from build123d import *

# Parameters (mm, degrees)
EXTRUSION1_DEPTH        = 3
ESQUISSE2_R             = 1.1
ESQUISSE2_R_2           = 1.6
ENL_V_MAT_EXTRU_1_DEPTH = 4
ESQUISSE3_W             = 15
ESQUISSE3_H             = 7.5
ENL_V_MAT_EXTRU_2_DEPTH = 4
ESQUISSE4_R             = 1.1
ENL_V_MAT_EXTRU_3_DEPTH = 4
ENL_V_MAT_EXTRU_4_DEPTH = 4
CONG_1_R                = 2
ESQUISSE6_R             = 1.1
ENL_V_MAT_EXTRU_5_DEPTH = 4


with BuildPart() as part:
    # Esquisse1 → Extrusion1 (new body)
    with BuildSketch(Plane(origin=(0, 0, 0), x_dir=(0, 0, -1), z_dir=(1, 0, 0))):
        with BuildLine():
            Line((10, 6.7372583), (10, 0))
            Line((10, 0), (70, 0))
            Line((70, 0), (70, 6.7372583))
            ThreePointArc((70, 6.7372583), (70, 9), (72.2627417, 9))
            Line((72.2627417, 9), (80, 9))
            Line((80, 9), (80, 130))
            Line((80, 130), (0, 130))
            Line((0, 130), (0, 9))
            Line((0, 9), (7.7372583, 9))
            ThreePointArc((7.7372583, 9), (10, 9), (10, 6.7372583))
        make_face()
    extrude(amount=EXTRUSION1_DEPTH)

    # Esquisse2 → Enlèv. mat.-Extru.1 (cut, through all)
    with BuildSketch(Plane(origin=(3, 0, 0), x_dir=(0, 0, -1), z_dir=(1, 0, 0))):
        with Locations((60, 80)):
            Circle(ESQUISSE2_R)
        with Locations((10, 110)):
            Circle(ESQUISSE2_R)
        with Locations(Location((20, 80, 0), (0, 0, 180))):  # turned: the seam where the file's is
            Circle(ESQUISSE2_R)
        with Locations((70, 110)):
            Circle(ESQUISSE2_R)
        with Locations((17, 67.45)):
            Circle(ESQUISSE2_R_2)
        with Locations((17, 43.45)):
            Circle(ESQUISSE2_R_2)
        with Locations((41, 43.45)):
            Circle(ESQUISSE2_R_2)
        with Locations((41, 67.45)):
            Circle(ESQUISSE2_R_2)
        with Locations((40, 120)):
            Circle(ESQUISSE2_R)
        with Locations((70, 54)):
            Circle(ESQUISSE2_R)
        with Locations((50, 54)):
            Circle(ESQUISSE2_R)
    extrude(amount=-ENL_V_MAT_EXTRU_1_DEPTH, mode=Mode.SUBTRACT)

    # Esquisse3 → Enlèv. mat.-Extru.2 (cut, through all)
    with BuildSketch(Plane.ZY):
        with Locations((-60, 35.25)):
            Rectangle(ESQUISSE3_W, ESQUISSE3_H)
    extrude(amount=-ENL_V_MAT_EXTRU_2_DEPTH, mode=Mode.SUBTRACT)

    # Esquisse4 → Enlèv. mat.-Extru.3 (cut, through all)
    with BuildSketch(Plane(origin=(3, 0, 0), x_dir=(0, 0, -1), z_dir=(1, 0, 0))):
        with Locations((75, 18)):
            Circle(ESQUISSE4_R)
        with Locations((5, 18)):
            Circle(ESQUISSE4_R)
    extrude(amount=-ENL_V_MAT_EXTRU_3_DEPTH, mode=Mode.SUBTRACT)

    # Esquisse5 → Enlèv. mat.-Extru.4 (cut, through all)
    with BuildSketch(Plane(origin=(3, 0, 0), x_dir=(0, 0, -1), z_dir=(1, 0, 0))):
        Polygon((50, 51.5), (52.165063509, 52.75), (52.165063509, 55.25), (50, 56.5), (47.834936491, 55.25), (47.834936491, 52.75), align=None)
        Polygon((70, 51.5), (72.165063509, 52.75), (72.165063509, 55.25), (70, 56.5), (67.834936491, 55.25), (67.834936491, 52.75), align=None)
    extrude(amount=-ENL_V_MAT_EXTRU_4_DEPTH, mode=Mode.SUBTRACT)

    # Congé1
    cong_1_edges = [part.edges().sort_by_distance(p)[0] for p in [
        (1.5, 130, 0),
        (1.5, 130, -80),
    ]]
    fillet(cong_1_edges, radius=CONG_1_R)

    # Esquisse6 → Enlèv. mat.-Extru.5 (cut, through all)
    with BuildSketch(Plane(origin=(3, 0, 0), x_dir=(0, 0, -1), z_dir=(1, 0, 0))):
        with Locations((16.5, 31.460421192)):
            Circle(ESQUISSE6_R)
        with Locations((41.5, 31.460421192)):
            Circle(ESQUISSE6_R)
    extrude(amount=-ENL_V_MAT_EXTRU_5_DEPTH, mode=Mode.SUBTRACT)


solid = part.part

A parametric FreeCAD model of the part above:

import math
import FreeCAD as App
import Part
import Sketcher
from FreeCAD import Vector
Q = App.Units.Quantity


def edges_at(feature, points):
    """Names of the edges that pass closest to the given points."""
    edges = feature.Shape.Edges
    near = lambda p: min(range(len(edges)), key=lambda i: edges[i].distToShape(Part.Vertex(*p))[0])
    return sorted({f"Edge{near(p) + 1}" for p in points})


def add_polygon(sketch, points):
    """Adds a closed chain of lines whose ends are joined by coincident constraints."""
    first, n = sketch.GeometryCount, len(points)
    for a, b in zip(points, points[1:] + points[:1]):
        sketch.addGeometry(Part.LineSegment(App.Vector(*a, 0), App.Vector(*b, 0)), False)
    for i in range(n):
        sketch.addConstraint(Sketcher.Constraint("Coincident", first + i, 2, first + (i + 1) % n, 1))

doc = App.newDocument("Part")
params = doc.addObject("Spreadsheet::Sheet", "Params")
for row, (alias, value) in enumerate([
    ("sketch1_radius", "1.6 mm"),
    ("sketch1_width", "121 mm"),
    ("sketch1_height", "60 mm"),
    ("sketch1_height2", "80 mm"),
    ("pad1_length", "3 mm"),
    ("sketch2_diameter", "2.2 mm"),
    ("sketch2_diameter2", "3.2 mm"),
    ("sketch3_height", "15 mm"),
    ("sketch3_width", "7.5 mm"),
    ("sketch4_diameter", "2.2 mm"),
    ("sketch5_width", "2.5 mm"),
    ("fillet_radius", "2 mm"),
    ("sketch6_diameter", "2.2 mm"),
], start=1):
    params.set(f"A{row}", alias)
    params.set(f"B{row}", "=" + value)
    params.setAlias(f"B{row}", alias)

body = doc.addObject("PartDesign::Body", "Body")

sketch1 = doc.addObject("Sketcher::SketchObject", "Sketch")
body.addObject(sketch1)
sketch1.AttachmentSupport = (doc.YZ_Plane, [""])
sketch1.MapMode = "FlatFace"
sketch1.addGeometry(Part.LineSegment(Vector(6.7, -10, 0), Vector(0, -10, 0)), False)
sketch1.addGeometry(Part.LineSegment(Vector(0, -10, 0), Vector(0, -70, 0)), False)
sketch1.addGeometry(Part.LineSegment(Vector(0, -70, 0), Vector(6.7, -70, 0)), False)
sketch1.addGeometry(Part.ArcOfCircle(Part.Circle(Vector(7.9, -71.1, 0), Vector(0, 0, 1), 1.6), math.radians(-45), math.radians(135)), False)
sketch1.addGeometry(Part.LineSegment(Vector(9, -72.3, 0), Vector(9, -80, 0)), False)
sketch1.addGeometry(Part.LineSegment(Vector(9, -80, 0), Vector(130, -80, 0)), False)
sketch1.addGeometry(Part.LineSegment(Vector(130, -80, 0), Vector(130, 0, 0)), False)
sketch1.addGeometry(Part.LineSegment(Vector(130, 0, 0), Vector(9, 0, 0)), False)
sketch1.addGeometry(Part.LineSegment(Vector(9, 0, 0), Vector(9, -7.7, 0)), False)
sketch1.addGeometry(Part.ArcOfCircle(Part.Circle(Vector(7.9, -8.9, 0), Vector(0, 0, 1), 1.6), math.radians(-135), math.radians(45)), False)
sketch1.addConstraint(Sketcher.Constraint("Coincident", 0, 2, 1, 1))
sketch1.addConstraint(Sketcher.Constraint("Coincident", 1, 2, 2, 1))
sketch1.addConstraint(Sketcher.Constraint("Coincident", 2, 2, 3, 2))
sketch1.addConstraint(Sketcher.Constraint("Coincident", 3, 1, 4, 1))
sketch1.addConstraint(Sketcher.Constraint("Coincident", 4, 2, 5, 1))
sketch1.addConstraint(Sketcher.Constraint("Coincident", 5, 2, 6, 1))
sketch1.addConstraint(Sketcher.Constraint("Coincident", 6, 2, 7, 1))
sketch1.addConstraint(Sketcher.Constraint("Coincident", 7, 2, 8, 1))
sketch1.addConstraint(Sketcher.Constraint("Coincident", 8, 2, 9, 2))
sketch1.addConstraint(Sketcher.Constraint("Coincident", 9, 1, 0, 1))
sketch1.addConstraint(Sketcher.Constraint("Horizontal", 0))
sketch1.addConstraint(Sketcher.Constraint("Vertical", 1))
sketch1.addConstraint(Sketcher.Constraint("Horizontal", 2))
sketch1.addConstraint(Sketcher.Constraint("Vertical", 4))
sketch1.addConstraint(Sketcher.Constraint("Horizontal", 5))
sketch1.addConstraint(Sketcher.Constraint("Vertical", 6))
sketch1.addConstraint(Sketcher.Constraint("Horizontal", 7))
sketch1.addConstraint(Sketcher.Constraint("Vertical", 8))
sketch1.addConstraint(Sketcher.Constraint("Equal", 3, 9))
sketch1.addConstraint(Sketcher.Constraint("PointOnObject", 0, 2, -2))
sketch1.addConstraint(Sketcher.Constraint("PointOnObject", 6, 2, -1))
sketch1.addConstraint(Sketcher.Constraint("Vertical", 3, 3, 9, 3))
sketch1.addConstraint(Sketcher.Constraint("Vertical", 4, 2, 7, 2))
sketch1.addConstraint(Sketcher.Constraint("Vertical", 2, 2, 9, 1))
sketch1.addConstraint(Sketcher.Constraint("Equal", 4, 8))
sketch1.addConstraint(Sketcher.Constraint("Radius", 3, 1.6))
sketch1.addConstraint(Sketcher.Constraint("DistanceX", 5, 1, 5, 2, 121.0))
sketch1.addConstraint(Sketcher.Constraint("DistanceY", 1, 2, 1, 1, 60.0))
sketch1.addConstraint(Sketcher.Constraint("DistanceY", 6, 1, 6, 2, 80.0))
sketch1.addConstraint(Sketcher.Constraint("DistanceX", -1, 1, 3, 1, 9.0))
sketch1.addConstraint(Sketcher.Constraint("DistanceX", 0, 2, 0, 1, 6.737258))
sketch1.addConstraint(Sketcher.Constraint("DistanceX", -1, 1, 3, 3, 7.868629))
sketch1.setExpression("Constraints[25]", "Params.sketch1_radius")
sketch1.setExpression("Constraints[26]", "Params.sketch1_width")
sketch1.setExpression("Constraints[27]", "Params.sketch1_height")
sketch1.setExpression("Constraints[28]", "Params.sketch1_height2")
pad1 = doc.addObject("PartDesign::Pad", "Pad")
body.addObject(pad1)
pad1.Profile = sketch1
pad1.setExpression("Length", "Params.pad1_length")

sketch2 = doc.addObject("Sketcher::SketchObject", "Sketch001")
body.addObject(sketch2)
sketch2.AttachmentSupport = (doc.YZ_Plane, [""])
sketch2.MapMode = "FlatFace"
sketch2.AttachmentOffset = App.Placement(Vector(0, 0, 3), App.Rotation())
sketch2.addGeometry(Part.Circle(Vector(80, -60, 0), Vector(0, 0, 1), 1.1), False)
sketch2.addGeometry(Part.Circle(Vector(110, -10, 0), Vector(0, 0, 1), 1.1), False)
sketch2.addGeometry(Part.Circle(Vector(80, -20, 0), Vector(0, 0, 1), 1.1), False)
sketch2.addGeometry(Part.Circle(Vector(110, -70, 0), Vector(0, 0, 1), 1.1), False)
sketch2.addGeometry(Part.Circle(Vector(67.5, -17, 0), Vector(0, 0, 1), 1.6), False)
sketch2.addGeometry(Part.Circle(Vector(43.5, -17, 0), Vector(0, 0, 1), 1.6), False)
sketch2.addGeometry(Part.Circle(Vector(43.5, -41, 0), Vector(0, 0, 1), 1.6), False)
sketch2.addGeometry(Part.Circle(Vector(67.5, -41, 0), Vector(0, 0, 1), 1.6), False)
sketch2.addGeometry(Part.Circle(Vector(120, -40, 0), Vector(0, 0, 1), 1.1), False)
sketch2.addGeometry(Part.Circle(Vector(54, -70, 0), Vector(0, 0, 1), 1.1), False)
sketch2.addGeometry(Part.Circle(Vector(54, -50, 0), Vector(0, 0, 1), 1.1), False)
sketch2.addConstraint(Sketcher.Constraint("Equal", 0, 1))
sketch2.addConstraint(Sketcher.Constraint("Equal", 1, 2))
sketch2.addConstraint(Sketcher.Constraint("Equal", 2, 3))
sketch2.addConstraint(Sketcher.Constraint("Equal", 4, 5))
sketch2.addConstraint(Sketcher.Constraint("Equal", 5, 6))
sketch2.addConstraint(Sketcher.Constraint("Equal", 6, 7))
sketch2.addConstraint(Sketcher.Constraint("Equal", 3, 8))
sketch2.addConstraint(Sketcher.Constraint("Equal", 8, 9))
sketch2.addConstraint(Sketcher.Constraint("Equal", 9, 10))
sketch2.addConstraint(Sketcher.Constraint("Horizontal", 4, 3, 5, 3))
sketch2.addConstraint(Sketcher.Constraint("Horizontal", 6, 3, 7, 3))
sketch2.addConstraint(Sketcher.Constraint("Horizontal", 3, 3, 9, 3))
sketch2.addConstraint(Sketcher.Constraint("Vertical", 0, 3, 2, 3))
sketch2.addConstraint(Sketcher.Constraint("Vertical", 1, 3, 3, 3))
sketch2.addConstraint(Sketcher.Constraint("Vertical", 5, 3, 6, 3))
sketch2.addConstraint(Sketcher.Constraint("Vertical", 4, 3, 7, 3))
sketch2.addConstraint(Sketcher.Constraint("Vertical", 9, 3, 10, 3))
sketch2.addConstraint(Sketcher.Constraint("Diameter", 0, 2.2))
sketch2.addConstraint(Sketcher.Constraint("Diameter", 4, 3.2))
sketch2.addConstraint(Sketcher.Constraint("DistanceX", -1, 1, 0, 3, 80.0))
sketch2.addConstraint(Sketcher.Constraint("DistanceY", 0, 3, -1, 1, 60.0))
sketch2.addConstraint(Sketcher.Constraint("DistanceX", -1, 1, 1, 3, 110.0))
sketch2.addConstraint(Sketcher.Constraint("DistanceY", 1, 3, -1, 1, 10.0))
sketch2.addConstraint(Sketcher.Constraint("DistanceY", 2, 3, -1, 1, 20.0))
sketch2.addConstraint(Sketcher.Constraint("DistanceY", 3, 3, -1, 1, 70.0))
sketch2.addConstraint(Sketcher.Constraint("DistanceY", 4, 3, -1, 1, 17.0))
sketch2.addConstraint(Sketcher.Constraint("DistanceY", 6, 3, -1, 1, 41.0))
sketch2.addConstraint(Sketcher.Constraint("DistanceX", -1, 1, 8, 3, 120.0))
sketch2.addConstraint(Sketcher.Constraint("DistanceY", 8, 3, -1, 1, 40.0))
sketch2.addConstraint(Sketcher.Constraint("DistanceX", -1, 1, 9, 3, 54.0))
sketch2.addConstraint(Sketcher.Constraint("DistanceY", 10, 3, -1, 1, 50.0))
sketch2.addConstraint(Sketcher.Constraint("DistanceX", 5, 3, 4, 3, 24.0))
sketch2.addConstraint(Sketcher.Constraint("DistanceX", -1, 1, 4, 3, 67.45))
sketch2.setExpression("Constraints[17]", "Params.sketch2_diameter")
sketch2.setExpression("Constraints[18]", "Params.sketch2_diameter2")
pocket1 = doc.addObject("PartDesign::Pocket", "Pocket")
body.addObject(pocket1)
pocket1.Profile = sketch2
pocket1.Type = "ThroughAll"

sketch3 = doc.addObject("Sketcher::SketchObject", "Sketch002")
body.addObject(sketch3)
sketch3.AttachmentSupport = (doc.YZ_Plane, [""])
sketch3.MapMode = "FlatFace"
add_polygon(sketch3, [(39, -68), (32, -68), (32, -52), (39, -52)])
sketch3.addConstraint(Sketcher.Constraint("Horizontal", 0))
sketch3.addConstraint(Sketcher.Constraint("Vertical", 1))
sketch3.addConstraint(Sketcher.Constraint("Horizontal", 2))
sketch3.addConstraint(Sketcher.Constraint("Vertical", 3))
sketch3.addConstraint(Sketcher.Constraint("DistanceY", 1, 1, 1, 2, 15.0))
sketch3.addConstraint(Sketcher.Constraint("DistanceX", 0, 2, 0, 1, 7.5))
sketch3.addConstraint(Sketcher.Constraint("DistanceX", -1, 1, 2, 2, 39.0))
sketch3.addConstraint(Sketcher.Constraint("DistanceY", 0, 2, -1, 1, 67.5))
sketch3.setExpression("Constraints[8]", "Params.sketch3_height")
sketch3.setExpression("Constraints[9]", "Params.sketch3_width")
pocket2 = doc.addObject("PartDesign::Pocket", "Pocket001")
body.addObject(pocket2)
pocket2.Profile = sketch3
pocket2.Type = "ThroughAll"
pocket2.Reversed = True

sketch4 = doc.addObject("Sketcher::SketchObject", "Sketch003")
body.addObject(sketch4)
sketch4.AttachmentSupport = (doc.YZ_Plane, [""])
sketch4.MapMode = "FlatFace"
sketch4.AttachmentOffset = App.Placement(Vector(0, 0, 3), App.Rotation())
sketch4.addGeometry(Part.Circle(Vector(18, -75, 0), Vector(0, 0, 1), 1.1), False)
sketch4.addGeometry(Part.Circle(Vector(18, -5, 0), Vector(0, 0, 1), 1.1), False)
sketch4.addConstraint(Sketcher.Constraint("Equal", 0, 1))
sketch4.addConstraint(Sketcher.Constraint("Vertical", 0, 3, 1, 3))
sketch4.addConstraint(Sketcher.Constraint("Diameter", 0, 2.2))
sketch4.addConstraint(Sketcher.Constraint("DistanceX", -1, 1, 0, 3, 18.0))
sketch4.addConstraint(Sketcher.Constraint("DistanceY", 0, 3, -1, 1, 75.0))
sketch4.addConstraint(Sketcher.Constraint("DistanceY", 1, 3, -1, 1, 5.0))
sketch4.setExpression("Constraints[2]", "Params.sketch4_diameter")
pocket3 = doc.addObject("PartDesign::Pocket", "Pocket002")
body.addObject(pocket3)
pocket3.Profile = sketch4
pocket3.Type = "ThroughAll"

sketch5 = doc.addObject("Sketcher::SketchObject", "Sketch004")
body.addObject(sketch5)
sketch5.AttachmentSupport = (doc.YZ_Plane, [""])
sketch5.MapMode = "FlatFace"
sketch5.AttachmentOffset = App.Placement(Vector(0, 0, 3), App.Rotation())
add_polygon(sketch5, [(51.5, -50), (52.8, -52.2), (55.2, -52.2), (56.5, -50), (55.2, -47.8), (52.8, -47.8)])
add_polygon(sketch5, [(51.5, -70), (52.8, -72.2), (55.2, -72.2), (56.5, -70), (55.2, -67.8), (52.8, -67.8)])
sketch5.addConstraint(Sketcher.Constraint("Horizontal", 1))
sketch5.addConstraint(Sketcher.Constraint("Horizontal", 4))
sketch5.addConstraint(Sketcher.Constraint("Horizontal", 7))
sketch5.addConstraint(Sketcher.Constraint("Horizontal", 10))
sketch5.addConstraint(Sketcher.Constraint("Parallel", 0, 3))
sketch5.addConstraint(Sketcher.Constraint("Parallel", 2, 5))
sketch5.addConstraint(Sketcher.Constraint("Parallel", 3, 6))
sketch5.addConstraint(Sketcher.Constraint("Parallel", 5, 8))
sketch5.addConstraint(Sketcher.Constraint("Parallel", 6, 9))
sketch5.addConstraint(Sketcher.Constraint("Parallel", 8, 11))
sketch5.addConstraint(Sketcher.Constraint("Horizontal", 2, 2, 5, 2))
sketch5.addConstraint(Sketcher.Constraint("Horizontal", 8, 2, 11, 2))
sketch5.addConstraint(Sketcher.Constraint("Vertical", 1, 2, 3, 2))
sketch5.addConstraint(Sketcher.Constraint("Vertical", 0, 2, 4, 2))
sketch5.addConstraint(Sketcher.Constraint("Vertical", 4, 2, 6, 2))
sketch5.addConstraint(Sketcher.Constraint("Vertical", 3, 2, 7, 2))
sketch5.addConstraint(Sketcher.Constraint("Vertical", 2, 2, 8, 2))
sketch5.addConstraint(Sketcher.Constraint("Vertical", 7, 2, 9, 2))
sketch5.addConstraint(Sketcher.Constraint("Angle", 0, Q("-60 deg")))
sketch5.addConstraint(Sketcher.Constraint("DistanceX", 1, 1, 1, 2, 2.5))
sketch5.addConstraint(Sketcher.Constraint("DistanceY", 2, 2, -1, 1, 50.0))
sketch5.addConstraint(Sketcher.Constraint("DistanceY", 8, 2, -1, 1, 70.0))
sketch5.addConstraint(Sketcher.Constraint("DistanceX", 5, 2, 2, 2, 5.0))
sketch5.addConstraint(Sketcher.Constraint("DistanceX", -1, 1, 2, 2, 56.5))
sketch5.setExpression("Constraints[31]", "Params.sketch5_width")
pocket4 = doc.addObject("PartDesign::Pocket", "Pocket003")
body.addObject(pocket4)
pocket4.Profile = sketch5
pocket4.Type = "ThroughAll"
doc.recompute()

fillet = doc.addObject("PartDesign::Fillet", "Fillet")
body.addObject(fillet)
fillet.Base = (pocket4, edges_at(pocket4, [(1.5, 130, 0), (1.5, 130, -80)]))
fillet.setExpression("Radius", "Params.fillet_radius")

sketch6 = doc.addObject("Sketcher::SketchObject", "Sketch005")
body.addObject(sketch6)
sketch6.AttachmentSupport = (doc.YZ_Plane, [""])
sketch6.MapMode = "FlatFace"
sketch6.AttachmentOffset = App.Placement(Vector(0, 0, 3), App.Rotation())
sketch6.addGeometry(Part.Circle(Vector(31.5, -16.5, 0), Vector(0, 0, 1), 1.1), False)
sketch6.addGeometry(Part.Circle(Vector(31.5, -41.5, 0), Vector(0, 0, 1), 1.1), False)
sketch6.addConstraint(Sketcher.Constraint("Equal", 0, 1))
sketch6.addConstraint(Sketcher.Constraint("Vertical", 0, 3, 1, 3))
sketch6.addConstraint(Sketcher.Constraint("Diameter", 0, 2.2))
sketch6.addConstraint(Sketcher.Constraint("DistanceY", 1, 3, 0, 3, 25.0))
sketch6.addConstraint(Sketcher.Constraint("DistanceY", 0, 3, -1, 1, 16.5))
sketch6.addConstraint(Sketcher.Constraint("DistanceX", -1, 1, 0, 3, 31.460421))
sketch6.setExpression("Constraints[2]", "Params.sketch6_diameter")
pocket5 = doc.addObject("PartDesign::Pocket", "Pocket004")
body.addObject(pocket5)
pocket5.Profile = sketch6
pocket5.Type = "ThroughAll"

doc.recompute()
